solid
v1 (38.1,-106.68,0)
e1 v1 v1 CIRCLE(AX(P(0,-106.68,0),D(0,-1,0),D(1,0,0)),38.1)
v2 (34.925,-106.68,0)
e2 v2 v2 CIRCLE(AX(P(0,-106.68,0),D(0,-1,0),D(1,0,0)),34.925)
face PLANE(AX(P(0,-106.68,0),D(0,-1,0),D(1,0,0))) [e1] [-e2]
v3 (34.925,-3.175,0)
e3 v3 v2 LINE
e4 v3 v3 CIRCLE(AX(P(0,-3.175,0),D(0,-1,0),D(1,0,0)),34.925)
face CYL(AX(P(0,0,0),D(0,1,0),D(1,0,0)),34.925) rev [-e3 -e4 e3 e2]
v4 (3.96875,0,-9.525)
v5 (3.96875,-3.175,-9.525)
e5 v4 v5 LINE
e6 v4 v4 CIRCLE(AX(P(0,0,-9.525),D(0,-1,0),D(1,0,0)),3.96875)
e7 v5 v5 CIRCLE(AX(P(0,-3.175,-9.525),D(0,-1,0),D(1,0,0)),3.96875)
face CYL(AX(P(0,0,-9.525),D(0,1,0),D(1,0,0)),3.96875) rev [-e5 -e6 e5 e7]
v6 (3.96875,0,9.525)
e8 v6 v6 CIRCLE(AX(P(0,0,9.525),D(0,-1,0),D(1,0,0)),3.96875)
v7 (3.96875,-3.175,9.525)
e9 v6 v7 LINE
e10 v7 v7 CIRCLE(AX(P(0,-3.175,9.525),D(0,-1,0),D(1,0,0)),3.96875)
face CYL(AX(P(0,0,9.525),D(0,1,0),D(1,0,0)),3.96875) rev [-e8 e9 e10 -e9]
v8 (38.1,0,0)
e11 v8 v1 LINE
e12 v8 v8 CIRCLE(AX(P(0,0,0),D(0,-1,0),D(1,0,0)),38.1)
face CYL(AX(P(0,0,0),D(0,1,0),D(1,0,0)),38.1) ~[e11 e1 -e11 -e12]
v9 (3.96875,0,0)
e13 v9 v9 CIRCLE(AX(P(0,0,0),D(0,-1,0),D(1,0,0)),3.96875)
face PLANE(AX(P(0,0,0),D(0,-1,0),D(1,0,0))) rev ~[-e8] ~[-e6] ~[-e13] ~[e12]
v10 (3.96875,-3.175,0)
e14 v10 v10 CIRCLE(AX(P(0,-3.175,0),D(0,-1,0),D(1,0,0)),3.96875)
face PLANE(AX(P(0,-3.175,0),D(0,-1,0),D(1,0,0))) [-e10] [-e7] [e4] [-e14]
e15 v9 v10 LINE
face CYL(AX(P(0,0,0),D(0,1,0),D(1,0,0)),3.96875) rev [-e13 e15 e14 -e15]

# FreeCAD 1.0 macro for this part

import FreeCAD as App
import Part
import Sketcher
from FreeCAD import Vector
Q = App.Units.Quantity

doc = App.newDocument("Part")
body = doc.addObject("PartDesign::Body", "Body")

# Sketch on XZ plane
sketch1 = body.newObject("Sketcher::SketchObject", "Sketch")
sketch1.AttachmentSupport = (doc.getObject("XZ_Plane"), [""])
sketch1.MapMode = "FlatFace"
sketch1.addGeometry([
    Part.Circle(Vector(0, 0, 0), Vector(0, 0, 1), 38),
    Part.Circle(Vector(0, 0, 0), Vector(0, 0, 1), 35),
], False)
sketch1.addConstraint([
    Sketcher.Constraint("Coincident", 0, 3, -1, 1),
    Sketcher.Constraint("Coincident", 1, 3, -1, 1),
    Sketcher.Constraint("Diameter", 0, Q("3 in")),
    Sketcher.Constraint("Diameter", 1, Q("2.75 in")),
])
pad1 = body.newObject("PartDesign::Pad", "Pad")
pad1.Profile = sketch1
pad1.Length = Q("4.2 in")

# Sketch on XZ plane
sketch2 = body.newObject("Sketcher::SketchObject", "Sketch001")
sketch2.AttachmentSupport = (doc.getObject("XZ_Plane"), [""])
sketch2.MapMode = "FlatFace"
sketch2.addGeometry([
    Part.Circle(Vector(0, 0, 0), Vector(0, 0, 1), 34.9),
    Part.Circle(Vector(0, -9.5, 0), Vector(0, 0, 1), 4),
    Part.Circle(Vector(0, 0, 0), Vector(0, 0, 1), 4),
    Part.Circle(Vector(0, 9.5, 0), Vector(0, 0, 1), 4),
], False)
sketch2.addConstraint([
    Sketcher.Constraint("Coincident", 0, 3, -1, 1),
    Sketcher.Constraint("Coincident", 2, 3, -1, 1),
    Sketcher.Constraint("Equal", 1, 2),
    Sketcher.Constraint("Equal", 2, 3),
    Sketcher.Constraint("Symmetric", 1, 3, 3, 3, -1, 1),
    Sketcher.Constraint("PointOnObject", 1, 3, -2),
    Sketcher.Constraint("Diameter", 0, Q("2.75 in")),
    Sketcher.Constraint("Diameter", 1, Q("0.3125 in")),
    Sketcher.Constraint("DistanceY", 1, 3, 3, 3, Q("0.75 in")),
])
pad2 = body.newObject("PartDesign::Pad", "Pad001")
pad2.Profile = sketch2
pad2.Length = Q("0.125 in")

doc.recompute()
